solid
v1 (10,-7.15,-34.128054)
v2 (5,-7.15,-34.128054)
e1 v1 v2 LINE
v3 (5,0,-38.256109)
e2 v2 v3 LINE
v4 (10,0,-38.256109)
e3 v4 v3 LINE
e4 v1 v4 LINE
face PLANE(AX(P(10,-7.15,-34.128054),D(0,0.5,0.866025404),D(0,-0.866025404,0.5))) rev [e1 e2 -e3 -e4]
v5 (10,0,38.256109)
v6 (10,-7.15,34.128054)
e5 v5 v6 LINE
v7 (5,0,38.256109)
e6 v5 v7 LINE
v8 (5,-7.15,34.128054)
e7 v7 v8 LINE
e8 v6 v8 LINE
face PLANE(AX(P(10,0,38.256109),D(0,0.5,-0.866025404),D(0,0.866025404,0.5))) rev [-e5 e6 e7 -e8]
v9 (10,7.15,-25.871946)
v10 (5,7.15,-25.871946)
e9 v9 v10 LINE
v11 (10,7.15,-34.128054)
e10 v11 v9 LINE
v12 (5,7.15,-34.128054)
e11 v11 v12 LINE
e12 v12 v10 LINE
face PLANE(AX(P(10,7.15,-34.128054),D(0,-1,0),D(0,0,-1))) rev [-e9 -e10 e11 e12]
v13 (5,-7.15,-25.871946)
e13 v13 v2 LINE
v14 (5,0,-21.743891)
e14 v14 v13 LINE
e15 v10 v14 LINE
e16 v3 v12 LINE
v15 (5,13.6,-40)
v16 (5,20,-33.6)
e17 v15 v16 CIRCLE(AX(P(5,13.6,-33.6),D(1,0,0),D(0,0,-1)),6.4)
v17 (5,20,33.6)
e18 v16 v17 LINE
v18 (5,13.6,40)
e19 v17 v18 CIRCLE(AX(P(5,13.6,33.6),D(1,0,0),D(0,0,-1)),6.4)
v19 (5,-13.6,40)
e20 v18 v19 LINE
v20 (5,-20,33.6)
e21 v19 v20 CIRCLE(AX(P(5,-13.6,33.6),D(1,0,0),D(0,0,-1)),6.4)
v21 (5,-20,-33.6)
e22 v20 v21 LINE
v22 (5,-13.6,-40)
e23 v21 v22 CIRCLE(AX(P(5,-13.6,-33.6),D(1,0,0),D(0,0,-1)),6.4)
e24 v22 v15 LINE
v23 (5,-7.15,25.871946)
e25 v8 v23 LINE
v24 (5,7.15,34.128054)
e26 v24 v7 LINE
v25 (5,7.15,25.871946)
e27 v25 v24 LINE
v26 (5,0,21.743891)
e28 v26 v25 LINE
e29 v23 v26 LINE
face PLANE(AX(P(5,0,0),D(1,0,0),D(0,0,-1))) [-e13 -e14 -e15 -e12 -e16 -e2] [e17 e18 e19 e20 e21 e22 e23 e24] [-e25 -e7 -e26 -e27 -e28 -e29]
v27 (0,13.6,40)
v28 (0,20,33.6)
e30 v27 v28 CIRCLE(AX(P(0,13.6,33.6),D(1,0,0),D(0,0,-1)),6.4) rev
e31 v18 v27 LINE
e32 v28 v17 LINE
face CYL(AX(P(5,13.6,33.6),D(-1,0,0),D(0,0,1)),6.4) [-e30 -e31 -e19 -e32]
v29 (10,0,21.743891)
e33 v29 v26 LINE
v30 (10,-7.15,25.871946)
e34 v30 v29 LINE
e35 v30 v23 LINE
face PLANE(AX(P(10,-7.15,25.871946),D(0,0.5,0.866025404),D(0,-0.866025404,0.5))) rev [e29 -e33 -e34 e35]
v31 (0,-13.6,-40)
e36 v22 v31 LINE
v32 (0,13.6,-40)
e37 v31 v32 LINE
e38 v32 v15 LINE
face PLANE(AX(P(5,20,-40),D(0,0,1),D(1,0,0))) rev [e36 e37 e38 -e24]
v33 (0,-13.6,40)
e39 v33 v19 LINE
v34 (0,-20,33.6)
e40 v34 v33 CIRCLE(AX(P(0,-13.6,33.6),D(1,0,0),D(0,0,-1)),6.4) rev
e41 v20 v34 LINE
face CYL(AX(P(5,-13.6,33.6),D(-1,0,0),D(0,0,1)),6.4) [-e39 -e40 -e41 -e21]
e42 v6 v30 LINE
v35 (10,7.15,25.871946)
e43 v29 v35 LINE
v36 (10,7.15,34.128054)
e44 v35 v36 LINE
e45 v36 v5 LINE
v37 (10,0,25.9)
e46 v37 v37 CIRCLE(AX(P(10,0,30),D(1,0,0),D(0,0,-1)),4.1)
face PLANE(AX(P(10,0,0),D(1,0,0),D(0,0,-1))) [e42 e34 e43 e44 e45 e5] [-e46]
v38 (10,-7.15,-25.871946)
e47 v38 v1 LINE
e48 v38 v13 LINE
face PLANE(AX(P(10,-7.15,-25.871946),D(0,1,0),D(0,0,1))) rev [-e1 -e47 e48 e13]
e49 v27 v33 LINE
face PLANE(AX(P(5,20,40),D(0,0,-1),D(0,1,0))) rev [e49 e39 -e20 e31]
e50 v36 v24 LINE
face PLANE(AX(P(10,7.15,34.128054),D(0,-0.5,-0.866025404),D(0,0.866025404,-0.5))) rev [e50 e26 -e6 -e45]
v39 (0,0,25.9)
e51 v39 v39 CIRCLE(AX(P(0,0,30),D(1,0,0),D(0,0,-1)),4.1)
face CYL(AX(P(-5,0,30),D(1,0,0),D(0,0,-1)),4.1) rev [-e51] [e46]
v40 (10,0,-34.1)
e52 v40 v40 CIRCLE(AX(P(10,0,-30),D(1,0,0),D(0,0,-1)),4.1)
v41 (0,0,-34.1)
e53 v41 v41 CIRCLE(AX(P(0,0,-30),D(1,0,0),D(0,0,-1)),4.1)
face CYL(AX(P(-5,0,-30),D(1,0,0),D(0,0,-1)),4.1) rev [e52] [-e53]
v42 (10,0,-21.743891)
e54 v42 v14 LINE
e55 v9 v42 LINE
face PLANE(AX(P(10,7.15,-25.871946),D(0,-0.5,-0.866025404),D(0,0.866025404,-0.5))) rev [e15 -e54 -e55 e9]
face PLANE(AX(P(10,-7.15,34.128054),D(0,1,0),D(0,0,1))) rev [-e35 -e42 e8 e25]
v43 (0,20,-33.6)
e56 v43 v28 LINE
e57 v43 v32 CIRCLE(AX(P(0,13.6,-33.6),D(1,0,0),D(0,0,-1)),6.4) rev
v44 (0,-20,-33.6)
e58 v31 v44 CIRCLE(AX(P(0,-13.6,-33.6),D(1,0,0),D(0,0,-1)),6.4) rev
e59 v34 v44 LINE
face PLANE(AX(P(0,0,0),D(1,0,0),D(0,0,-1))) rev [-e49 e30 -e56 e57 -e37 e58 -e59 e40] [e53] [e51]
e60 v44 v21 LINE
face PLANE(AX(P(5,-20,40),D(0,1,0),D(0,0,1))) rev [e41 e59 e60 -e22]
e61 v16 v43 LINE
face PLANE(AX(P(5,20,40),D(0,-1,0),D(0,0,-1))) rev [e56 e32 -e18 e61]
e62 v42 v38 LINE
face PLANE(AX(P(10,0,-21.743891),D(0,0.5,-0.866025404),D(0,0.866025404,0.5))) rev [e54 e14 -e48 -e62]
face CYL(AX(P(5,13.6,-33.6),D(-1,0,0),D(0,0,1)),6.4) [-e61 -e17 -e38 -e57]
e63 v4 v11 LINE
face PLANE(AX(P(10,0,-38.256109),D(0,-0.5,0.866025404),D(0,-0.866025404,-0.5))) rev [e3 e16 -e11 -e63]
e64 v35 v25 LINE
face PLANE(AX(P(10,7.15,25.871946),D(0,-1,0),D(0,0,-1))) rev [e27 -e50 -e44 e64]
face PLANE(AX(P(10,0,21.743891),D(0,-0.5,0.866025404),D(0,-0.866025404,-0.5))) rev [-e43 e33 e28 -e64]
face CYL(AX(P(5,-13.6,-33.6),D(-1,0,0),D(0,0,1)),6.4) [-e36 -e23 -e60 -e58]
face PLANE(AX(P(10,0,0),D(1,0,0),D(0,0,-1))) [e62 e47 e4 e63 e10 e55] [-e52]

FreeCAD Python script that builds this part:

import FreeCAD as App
import Part
import Sketcher
from FreeCAD import Vector
Q = App.Units.Quantity


def edges_at(feature, points):
    """Names of the edges that pass closest to the given points."""
    edges = feature.Shape.Edges
    near = lambda p: min(range(len(edges)), key=lambda i: edges[i].distToShape(Part.Vertex(*p))[0])
    return sorted({f"Edge{near(p) + 1}" for p in points})

doc = App.newDocument("Part")
body = doc.addObject("PartDesign::Body", "Body")

# Sketch on YZ plane
sketch1 = doc.addObject("Sketcher::SketchObject", "Sketch")
body.addObject(sketch1)
sketch1.AttachmentSupport = (doc.YZ_Plane, [""])
sketch1.MapMode = "FlatFace"
sketch1.addGeometry([
    Part.LineSegment(Vector(20, 40, 0), Vector(-20, 40, 0)),
    Part.LineSegment(Vector(-20, 40, 0), Vector(-20, -40, 0)),
    Part.LineSegment(Vector(-20, -40, 0), Vector(20, -40, 0)),
    Part.LineSegment(Vector(20, -40, 0), Vector(20, 40, 0)),
], False)
sketch1.addConstraint([
    Sketcher.Constraint("Coincident", 0, 2, 1, 1),
    Sketcher.Constraint("Coincident", 1, 2, 2, 1),
    Sketcher.Constraint("Coincident", 2, 2, 3, 1),
    Sketcher.Constraint("Coincident", 3, 2, 0, 1),
    Sketcher.Constraint("Horizontal", 0),
    Sketcher.Constraint("Vertical", 1),
    Sketcher.Constraint("Horizontal", 2),
    Sketcher.Constraint("Vertical", 3),
    Sketcher.Constraint("Symmetric", 0, 2, 2, 2, -1, 1),
    Sketcher.Constraint("DistanceX", 0, 2, 0, 1, 40.0),
    Sketcher.Constraint("DistanceY", 1, 2, 1, 1, 80.0),
])
pad1 = doc.addObject("PartDesign::Pad", "Pad")
body.addObject(pad1)
pad1.Profile = sketch1
pad1.Length = 5
doc.recompute()

fillet = doc.addObject("PartDesign::Fillet", "Fillet")
body.addObject(fillet)
fillet.Base = (pad1, edges_at(pad1, [
    (2.5, -20, -40),
    (2.5, -20, 40),
    (2.5, 20, 40),
    (2.5, 20, -40),
]))
fillet.Radius = 6.4

# Sketch on YZ plane
sketch2 = doc.addObject("Sketcher::SketchObject", "Sketch001")
body.addObject(sketch2)
sketch2.AttachmentSupport = (doc.YZ_Plane, [""])
sketch2.MapMode = "FlatFace"
sketch2.AttachmentOffset = App.Placement(Vector(0, 0, 5), App.Rotation())
sketch2.addGeometry([
    Part.Circle(Vector(0, 30, 0), Vector(0, 0, 1), 4.1),
    Part.Circle(Vector(0, -30, 0), Vector(0, 0, 1), 4.1),
], False)
sketch2.addConstraint([
    Sketcher.Constraint("Equal", 0, 1),
    Sketcher.Constraint("Symmetric", 0, 3, 1, 3, -1, 1),
    Sketcher.Constraint("PointOnObject", 0, 3, -2),
    Sketcher.Constraint("Diameter", 0, 8.2),
    Sketcher.Constraint("DistanceY", -1, 1, 0, 3, 30.0),
])
pocket1 = doc.addObject("PartDesign::Pocket", "Pocket")
body.addObject(pocket1)
pocket1.Profile = sketch2
pocket1.Length = 20
pocket1.Midplane = True

# Sketch on YZ plane
sketch3 = doc.addObject("Sketcher::SketchObject", "Sketch002")
body.addObject(sketch3)
sketch3.AttachmentSupport = (doc.YZ_Plane, [""])
sketch3.MapMode = "FlatFace"
sketch3.AttachmentOffset = App.Placement(Vector(0, 0, 5), App.Rotation())
sketch3.addGeometry([
    Part.LineSegment(Vector(0, 21.743891, 0), Vector(7.15, 25.871946, 0)),  # 0
    Part.LineSegment(Vector(7.15, 25.871946, 0), Vector(7.15, 34.128054, 0)),  # 1
    Part.LineSegment(Vector(7.15, 34.128054, 0), Vector(0, 38.256109, 0)),  # 2
    Part.LineSegment(Vector(0, 38.256109, 0), Vector(-7.15, 34.128054, 0)),  # 3
    Part.LineSegment(Vector(-7.15, 34.128054, 0), Vector(-7.15, 25.871946, 0)),  # 4
    Part.LineSegment(Vector(-7.15, 25.871946, 0), Vector(0, 21.743891, 0)),  # 5
    Part.LineSegment(Vector(0, -21.743891, 0), Vector(-7.15, -25.871946, 0)),  # 6
    Part.LineSegment(Vector(-7.15, -25.871946, 0), Vector(-7.15, -34.128054, 0)),  # 7
    Part.LineSegment(Vector(-7.15, -34.128054, 0), Vector(0, -38.256109, 0)),  # 8
    Part.LineSegment(Vector(0, -38.256109, 0), Vector(7.15, -34.128054, 0)),  # 9
    Part.LineSegment(Vector(7.15, -34.128054, 0), Vector(7.15, -25.871946, 0)),  # 10
    Part.LineSegment(Vector(7.15, -25.871946, 0), Vector(0, -21.743891, 0)),  # 11
], False)
sketch3.addConstraint([
    Sketcher.Constraint("Coincident", 0, 2, 1, 1),
    Sketcher.Constraint("Coincident", 1, 2, 2, 1),
    Sketcher.Constraint("Coincident", 2, 2, 3, 1),
    Sketcher.Constraint("Coincident", 3, 2, 4, 1),
    Sketcher.Constraint("Coincident", 4, 2, 5, 1),
    Sketcher.Constraint("Coincident", 5, 2, 0, 1),
    Sketcher.Constraint("Coincident", 6, 2, 7, 1),
    Sketcher.Constraint("Coincident", 7, 2, 8, 1),
    Sketcher.Constraint("Coincident", 8, 2, 9, 1),
    Sketcher.Constraint("Coincident", 9, 2, 10, 1),
    Sketcher.Constraint("Coincident", 10, 2, 11, 1),
    Sketcher.Constraint("Coincident", 11, 2, 6, 1),
    Sketcher.Constraint("Vertical", 1),
    Sketcher.Constraint("Vertical", 4),
    Sketcher.Constraint("Vertical", 7),
    Sketcher.Constraint("Vertical", 10),
    Sketcher.Constraint("Symmetric", 0, 2, 6, 2, -1, 1),
    Sketcher.Constraint("Symmetric", 2, 2, 8, 2, -1, 1),
    Sketcher.Constraint("Symmetric", 3, 2, 9, 2, -1, 1),
    Sketcher.Constraint("Symmetric", 5, 2, 11, 2, -1, 1),
    Sketcher.Constraint("Symmetric", 1, 2, 3, 2, -2),
    Sketcher.Constraint("PointOnObject", 2, 2, -2),
    Sketcher.Constraint("PointOnObject", 5, 2, -2),
    Sketcher.Constraint("Parallel", 0, 3),
    Sketcher.Constraint("Parallel", 2, 5),
    Sketcher.Constraint("Parallel", 5, 8),
    Sketcher.Constraint("Parallel", 8, 11),
    Sketcher.Constraint("Angle", 0, Q("30 deg")),
    Sketcher.Constraint("DistanceY", 6, 2, 3, 2, 60.0),
    Sketcher.Constraint("DistanceX", 3, 2, 1, 2, 14.3),
    Sketcher.Constraint("DistanceY", 1, 1, 1, 2, 8.256109),
])
pad2 = doc.addObject("PartDesign::Pad", "Pad001")
body.addObject(pad2)
pad2.Profile = sketch3
pad2.Length = 5

# Sketch on YZ plane
sketch4 = doc.addObject("Sketcher::SketchObject", "Sketch003")
body.addObject(sketch4)
sketch4.AttachmentSupport = (doc.YZ_Plane, [""])
sketch4.MapMode = "FlatFace"
sketch4.AttachmentOffset = App.Placement(Vector(0, 0, 15), App.Rotation())
sketch4.addGeometry([
    Part.Circle(Vector(0, 30, 0), Vector(0, 0, 1), 4.1),
    Part.Circle(Vector(0, -30, 0), Vector(0, 0, 1), 4.1),
], False)
sketch4.addConstraint([
    Sketcher.Constraint("Equal", 0, 1),
    Sketcher.Constraint("Symmetric", 0, 3, 1, 3, -1, 1),
    Sketcher.Constraint("PointOnObject", 0, 3, -2),
    Sketcher.Constraint("Diameter", 0, 8.2),
    Sketcher.Constraint("DistanceY", -1, 1, 0, 3, 30.0),
])
pocket2 = doc.addObject("PartDesign::Pocket", "Pocket001")
body.addObject(pocket2)
pocket2.Profile = sketch4
pocket2.Length = 15

doc.recompute()
